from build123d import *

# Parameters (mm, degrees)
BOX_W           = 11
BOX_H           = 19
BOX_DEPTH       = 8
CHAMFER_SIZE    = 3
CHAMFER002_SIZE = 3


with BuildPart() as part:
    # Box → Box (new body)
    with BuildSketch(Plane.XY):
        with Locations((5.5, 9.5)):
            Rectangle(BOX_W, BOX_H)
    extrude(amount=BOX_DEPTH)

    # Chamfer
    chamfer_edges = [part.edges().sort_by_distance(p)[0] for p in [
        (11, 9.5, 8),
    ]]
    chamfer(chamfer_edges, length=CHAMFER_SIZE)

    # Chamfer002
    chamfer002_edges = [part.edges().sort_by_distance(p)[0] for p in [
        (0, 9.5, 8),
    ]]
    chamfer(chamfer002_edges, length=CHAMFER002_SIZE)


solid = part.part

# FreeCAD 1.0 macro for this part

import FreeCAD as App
import Part
import Sketcher
Q = App.Units.Quantity


def edges_at(feature, points):
    """Names of the edges that pass closest to the given points."""
    edges = feature.Shape.Edges
    near = lambda p: min(range(len(edges)), key=lambda i: edges[i].distToShape(Part.Vertex(*p))[0])
    return sorted({f"Edge{near(p) + 1}" for p in points})

doc = App.newDocument("Part")
body = doc.addObject("PartDesign::Body", "Body")

# Sketch on XY plane
sketch1 = body.newObject("Sketcher::SketchObject", "Sketch")
sketch1.AttachmentSupport = (doc.getObject("XY_Plane"), [""])
sketch1.MapMode = "FlatFace"
sketch1.addGeometry([
    Part.LineSegment(App.Vector(0, 19, 0), App.Vector(0, 0, 0)),
    Part.LineSegment(App.Vector(0, 0, 0), App.Vector(11, 0, 0)),
    Part.LineSegment(App.Vector(11, 0, 0), App.Vector(11, 19, 0)),
    Part.LineSegment(App.Vector(11, 19, 0), App.Vector(0, 19, 0)),
], False)
sketch1.addConstraint([
    Sketcher.Constraint("Coincident", 0, 2, 1, 1),
    Sketcher.Constraint("Coincident", 1, 2, 2, 1),
    Sketcher.Constraint("Coincident", 2, 2, 3, 1),
    Sketcher.Constraint("Coincident", 3, 2, 0, 1),
    Sketcher.Constraint("Vertical", 0),
    Sketcher.Constraint("Horizontal", 1),
    Sketcher.Constraint("Vertical", 2),
    Sketcher.Constraint("Horizontal", 3),
    Sketcher.Constraint("Coincident", 0, 2, -1, 1),
    Sketcher.Constraint("DistanceX", 1, 1, 1, 2, Q("11 mm")),
    Sketcher.Constraint("DistanceY", 0, 2, 0, 1, Q("19 mm")),
])
pad1 = body.newObject("PartDesign::Pad", "Pad")
pad1.Profile = sketch1
pad1.Length = 8
doc.recompute()

chamfer = body.newObject("PartDesign::Chamfer", "Chamfer")
chamfer.Base = (pad1, edges_at(pad1, [(11, 9.5, 8)]))
chamfer.Size = 3
doc.recompute()

chamfer2 = body.newObject("PartDesign::Chamfer", "Chamfer001")
chamfer2.Base = (chamfer, edges_at(chamfer, [(0, 9.5, 8)]))
chamfer2.Size = 3

doc.recompute()
